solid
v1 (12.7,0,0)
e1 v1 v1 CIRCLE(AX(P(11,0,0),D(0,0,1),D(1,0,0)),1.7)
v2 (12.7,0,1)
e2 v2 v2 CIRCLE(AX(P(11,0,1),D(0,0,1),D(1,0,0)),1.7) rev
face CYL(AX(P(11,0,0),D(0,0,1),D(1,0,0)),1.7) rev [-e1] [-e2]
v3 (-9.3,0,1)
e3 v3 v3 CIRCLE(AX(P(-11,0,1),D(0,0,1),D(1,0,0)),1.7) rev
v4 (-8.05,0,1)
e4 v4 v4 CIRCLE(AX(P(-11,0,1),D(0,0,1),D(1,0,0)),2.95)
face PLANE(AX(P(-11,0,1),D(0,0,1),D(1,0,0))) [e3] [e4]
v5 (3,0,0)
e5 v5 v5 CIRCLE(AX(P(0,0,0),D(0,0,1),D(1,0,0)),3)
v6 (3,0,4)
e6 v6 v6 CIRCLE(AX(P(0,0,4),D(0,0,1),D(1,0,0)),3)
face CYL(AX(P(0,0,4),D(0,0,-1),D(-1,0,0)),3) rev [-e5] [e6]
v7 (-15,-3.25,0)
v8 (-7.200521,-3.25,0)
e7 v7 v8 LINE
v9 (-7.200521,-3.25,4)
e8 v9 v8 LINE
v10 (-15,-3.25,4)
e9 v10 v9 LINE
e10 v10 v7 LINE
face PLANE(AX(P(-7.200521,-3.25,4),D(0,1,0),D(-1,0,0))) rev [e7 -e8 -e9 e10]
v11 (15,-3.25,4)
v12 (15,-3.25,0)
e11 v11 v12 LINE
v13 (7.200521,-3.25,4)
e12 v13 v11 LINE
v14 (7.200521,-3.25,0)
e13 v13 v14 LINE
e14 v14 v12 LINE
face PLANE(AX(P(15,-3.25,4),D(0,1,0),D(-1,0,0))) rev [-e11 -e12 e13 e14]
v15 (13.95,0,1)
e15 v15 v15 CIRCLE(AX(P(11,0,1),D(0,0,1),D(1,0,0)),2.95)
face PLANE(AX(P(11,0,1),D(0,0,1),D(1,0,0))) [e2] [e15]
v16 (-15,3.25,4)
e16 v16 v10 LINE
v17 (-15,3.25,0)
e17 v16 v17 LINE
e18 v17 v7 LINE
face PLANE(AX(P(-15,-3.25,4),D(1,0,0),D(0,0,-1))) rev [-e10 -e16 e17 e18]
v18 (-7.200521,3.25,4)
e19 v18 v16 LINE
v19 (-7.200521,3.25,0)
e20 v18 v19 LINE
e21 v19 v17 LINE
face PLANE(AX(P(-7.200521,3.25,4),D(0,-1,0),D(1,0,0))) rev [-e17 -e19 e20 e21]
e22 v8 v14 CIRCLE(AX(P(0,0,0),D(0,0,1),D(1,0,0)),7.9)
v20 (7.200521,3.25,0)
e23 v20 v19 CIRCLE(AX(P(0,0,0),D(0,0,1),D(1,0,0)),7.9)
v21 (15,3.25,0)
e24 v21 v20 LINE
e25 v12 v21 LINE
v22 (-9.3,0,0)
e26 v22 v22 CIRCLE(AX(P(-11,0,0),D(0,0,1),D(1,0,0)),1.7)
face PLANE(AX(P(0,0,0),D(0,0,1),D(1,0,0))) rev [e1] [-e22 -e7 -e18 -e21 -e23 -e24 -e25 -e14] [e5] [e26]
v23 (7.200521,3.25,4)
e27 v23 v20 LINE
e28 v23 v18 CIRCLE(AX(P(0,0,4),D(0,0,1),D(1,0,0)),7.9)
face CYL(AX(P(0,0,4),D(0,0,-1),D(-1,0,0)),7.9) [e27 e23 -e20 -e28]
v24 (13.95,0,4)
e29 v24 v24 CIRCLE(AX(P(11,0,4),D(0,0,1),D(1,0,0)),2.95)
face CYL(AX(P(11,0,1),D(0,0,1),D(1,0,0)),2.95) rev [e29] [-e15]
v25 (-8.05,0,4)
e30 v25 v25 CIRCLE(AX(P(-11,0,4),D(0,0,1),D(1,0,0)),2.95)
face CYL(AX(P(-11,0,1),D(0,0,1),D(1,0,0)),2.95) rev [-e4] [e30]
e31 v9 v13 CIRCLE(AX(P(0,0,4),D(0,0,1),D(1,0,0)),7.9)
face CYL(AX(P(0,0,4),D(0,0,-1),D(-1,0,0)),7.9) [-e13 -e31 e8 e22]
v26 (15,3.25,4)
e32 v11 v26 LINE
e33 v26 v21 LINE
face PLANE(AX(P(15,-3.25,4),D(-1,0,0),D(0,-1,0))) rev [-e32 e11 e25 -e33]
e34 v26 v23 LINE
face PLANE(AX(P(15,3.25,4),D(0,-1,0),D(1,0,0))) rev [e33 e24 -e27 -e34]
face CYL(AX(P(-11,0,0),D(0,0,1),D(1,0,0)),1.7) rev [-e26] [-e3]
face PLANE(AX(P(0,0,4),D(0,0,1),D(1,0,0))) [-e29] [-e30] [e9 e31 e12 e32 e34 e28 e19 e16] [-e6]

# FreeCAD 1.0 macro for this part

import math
import FreeCAD as App
import Part
import Sketcher
from FreeCAD import Vector

doc = App.newDocument("Part")
params = doc.addObject("Spreadsheet::Sheet", "Params")
for row, (alias, value) in enumerate([
    ("sketch1_diameter", "6 mm"),
    ("sketch1_radius", "7.9 mm"),
    ("sketch1_height", "6.5 mm"),
    ("pad1_length", "4 mm"),
    ("sketch2_diameter", "3.4 mm"),
    ("pocket1_length", "4 mm"),
    ("sketch3_diameter", "5.9 mm"),
    ("pocket2_length", "3 mm"),
], start=1):
    params.set(f"A{row}", alias)
    params.set(f"B{row}", "=" + value)
    params.setAlias(f"B{row}", alias)

body = doc.addObject("PartDesign::Body", "Body")

# Sketch on XY plane
sketch1 = body.newObject("Sketcher::SketchObject", "Sketch")
sketch1.AttachmentSupport = (doc.getObject("XY_Plane"), [""])
sketch1.MapMode = "FlatFace"
sketch1.addGeometry([
    Part.LineSegment(Vector(-7.200521, 3.25, 0), Vector(-15, 3.25, 0)),  # 0
    Part.LineSegment(Vector(-15, 3.25, 0), Vector(-15, -3.25, 0)),  # 1
    Part.LineSegment(Vector(-15, -3.25, 0), Vector(-7.200521, -3.25, 0)),  # 2
    Part.ArcOfCircle(Part.Circle(Vector(0, 0, 0), Vector(0, 0, 1), 7.9), math.radians(-155.707666), math.radians(-24.292334)),  # 3
    Part.LineSegment(Vector(7.200521, -3.25, 0), Vector(15, -3.25, 0)),  # 4
    Part.LineSegment(Vector(15, -3.25, 0), Vector(15, 3.25, 0)),  # 5
    Part.LineSegment(Vector(15, 3.25, 0), Vector(7.200521, 3.25, 0)),  # 6
    Part.ArcOfCircle(Part.Circle(Vector(0, 0, 0), Vector(0, 0, 1), 7.9), math.radians(24.292334), math.radians(155.707666)),  # 7
    Part.Circle(Vector(0, 0, 0), Vector(0, 0, 1), 3),  # 8
], False)
sketch1.addConstraint([
    Sketcher.Constraint("Coincident", 0, 2, 1, 1),
    Sketcher.Constraint("Coincident", 1, 2, 2, 1),
    Sketcher.Constraint("Coincident", 2, 2, 3, 1),
    Sketcher.Constraint("Coincident", 3, 2, 4, 1),
    Sketcher.Constraint("Coincident", 4, 2, 5, 1),
    Sketcher.Constraint("Coincident", 5, 2, 6, 1),
    Sketcher.Constraint("Coincident", 6, 2, 7, 1),
    Sketcher.Constraint("Coincident", 7, 2, 0, 1),
    Sketcher.Constraint("Horizontal", 0),
    Sketcher.Constraint("Vertical", 1),
    Sketcher.Constraint("Horizontal", 2),
    Sketcher.Constraint("Horizontal", 4),
    Sketcher.Constraint("Vertical", 5),
    Sketcher.Constraint("Horizontal", 6),
    Sketcher.Constraint("Coincident", 3, 3, -1, 1),
    Sketcher.Constraint("Coincident", 7, 3, -1, 1),
    Sketcher.Constraint("Coincident", 8, 3, -1, 1),
    Sketcher.Constraint("Equal", 3, 7),
    Sketcher.Constraint("Symmetric", 0, 2, 4, 2, -1, 1),
    Sketcher.Constraint("Horizontal", 2, 2, 3, 2),
    Sketcher.Constraint("Horizontal", 0, 2, 5, 2),
    Sketcher.Constraint("Diameter", 8, 6.0),
    Sketcher.Constraint("Radius", 3, 7.9),
    Sketcher.Constraint("DistanceY", 1, 2, 1, 1, 6.5),
    Sketcher.Constraint("DistanceX", 0, 2, -1, 1, 15.0),
])
sketch1.setExpression("Constraints[21]", "Params.sketch1_diameter")
sketch1.setExpression("Constraints[22]", "Params.sketch1_radius")
sketch1.setExpression("Constraints[23]", "Params.sketch1_height")
pad1 = body.newObject("PartDesign::Pad", "Pad")
pad1.Profile = sketch1
pad1.setExpression("Length", "Params.pad1_length")

# Sketch on XY plane
sketch2 = body.newObject("Sketcher::SketchObject", "Sketch001")
sketch2.AttachmentSupport = (doc.getObject("XY_Plane"), [""])
sketch2.MapMode = "FlatFace"
sketch2.AttachmentOffset = App.Placement(Vector(0, 0, 4), App.Rotation())
sketch2.addGeometry([
    Part.Circle(Vector(-11, 0, 0), Vector(0, 0, 1), 1.7),
    Part.Circle(Vector(11, 0, 0), Vector(0, 0, 1), 1.7),
], False)
sketch2.addConstraint([
    Sketcher.Constraint("Equal", 0, 1),
    Sketcher.Constraint("Symmetric", 0, 3, 1, 3, -1, 1),
    Sketcher.Constraint("PointOnObject", 0, 3, -1),
    Sketcher.Constraint("Diameter", 0, 3.4),
    Sketcher.Constraint("DistanceX", 0, 3, -1, 1, 11.0),
])
sketch2.setExpression("Constraints[3]", "Params.sketch2_diameter")
pocket1 = body.newObject("PartDesign::Pocket", "Pocket")
pocket1.Profile = sketch2
pocket1.setExpression("Length", "Params.pocket1_length")

# Sketch on XY plane
sketch3 = body.newObject("Sketcher::SketchObject", "Sketch002")
sketch3.AttachmentSupport = (doc.getObject("XY_Plane"), [""])
sketch3.MapMode = "FlatFace"
sketch3.AttachmentOffset = App.Placement(Vector(0, 0, 4), App.Rotation())
sketch3.addGeometry([
    Part.Circle(Vector(-11, 0, 0), Vector(0, 0, 1), 2.95),
    Part.Circle(Vector(11, 0, 0), Vector(0, 0, 1), 2.95),
], False)
sketch3.addConstraint([
    Sketcher.Constraint("Equal", 0, 1),
    Sketcher.Constraint("Symmetric", 0, 3, 1, 3, -1, 1),
    Sketcher.Constraint("PointOnObject", 0, 3, -1),
    Sketcher.Constraint("Diameter", 0, 5.9),
    Sketcher.Constraint("DistanceX", 0, 3, -1, 1, 11.0),
])
sketch3.setExpression("Constraints[3]", "Params.sketch3_diameter")
pocket2 = body.newObject("PartDesign::Pocket", "Pocket001")
pocket2.Profile = sketch3
pocket2.setExpression("Length", "Params.pocket2_length")

doc.recompute()
